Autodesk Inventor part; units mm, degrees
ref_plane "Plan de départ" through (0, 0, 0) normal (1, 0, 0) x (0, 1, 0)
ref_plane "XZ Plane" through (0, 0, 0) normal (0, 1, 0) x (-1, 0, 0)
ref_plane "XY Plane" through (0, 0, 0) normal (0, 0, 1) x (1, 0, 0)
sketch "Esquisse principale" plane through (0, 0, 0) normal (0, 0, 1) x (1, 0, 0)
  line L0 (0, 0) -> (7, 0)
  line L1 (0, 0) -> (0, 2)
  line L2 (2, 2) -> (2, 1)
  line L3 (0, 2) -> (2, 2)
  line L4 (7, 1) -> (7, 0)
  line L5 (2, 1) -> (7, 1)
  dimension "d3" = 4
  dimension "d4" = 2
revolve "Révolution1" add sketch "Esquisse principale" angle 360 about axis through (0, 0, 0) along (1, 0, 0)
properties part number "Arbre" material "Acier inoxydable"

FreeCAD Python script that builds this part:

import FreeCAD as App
import Part
import Sketcher
from FreeCAD import Vector

doc = App.newDocument("Part")
body = doc.addObject("PartDesign::Body", "Body")

sketch1 = doc.addObject("Sketcher::SketchObject", "Sketch")
body.addObject(sketch1)
sketch1.AttachmentSupport = (doc.XY_Plane, [""])
sketch1.MapMode = "FlatFace"
sketch1.addGeometry([
    Part.LineSegment(Vector(0, 2, 0), Vector(0, 0, 0)),
    Part.LineSegment(Vector(0, 0, 0), Vector(7, 0, 0)),
    Part.LineSegment(Vector(7, 0, 0), Vector(7, 1, 0)),
    Part.LineSegment(Vector(7, 1, 0), Vector(2, 1, 0)),
    Part.LineSegment(Vector(2, 1, 0), Vector(2, 2, 0)),
    Part.LineSegment(Vector(2, 2, 0), Vector(0, 2, 0)),
], False)
sketch1.addConstraint([
    Sketcher.Constraint("Coincident", 0, 2, 1, 1),
    Sketcher.Constraint("Coincident", 1, 2, 2, 1),
    Sketcher.Constraint("Coincident", 2, 2, 3, 1),
    Sketcher.Constraint("Coincident", 3, 2, 4, 1),
    Sketcher.Constraint("Coincident", 4, 2, 5, 1),
    Sketcher.Constraint("Coincident", 5, 2, 0, 1),
    Sketcher.Constraint("Vertical", 0),
    Sketcher.Constraint("Horizontal", 1),
    Sketcher.Constraint("Vertical", 2),
    Sketcher.Constraint("Horizontal", 3),
    Sketcher.Constraint("Vertical", 4),
    Sketcher.Constraint("Horizontal", 5),
    Sketcher.Constraint("Coincident", 0, 2, -1, 1),
    Sketcher.Constraint("Equal", 5, 0),
    Sketcher.Constraint("Equal", 2, 4),
    Sketcher.Constraint("DistanceX", 5, 2, 5, 1, 2.0),
    Sketcher.Constraint("DistanceX", 1, 1, 1, 2, 7.0),
])
revolution = doc.addObject("PartDesign::Revolution", "Revolution")
body.addObject(revolution)
revolution.Profile = sketch1
revolution.ReferenceAxis = (sketch1, ["H_Axis"])
revolution.Angle = 360

doc.recompute()
